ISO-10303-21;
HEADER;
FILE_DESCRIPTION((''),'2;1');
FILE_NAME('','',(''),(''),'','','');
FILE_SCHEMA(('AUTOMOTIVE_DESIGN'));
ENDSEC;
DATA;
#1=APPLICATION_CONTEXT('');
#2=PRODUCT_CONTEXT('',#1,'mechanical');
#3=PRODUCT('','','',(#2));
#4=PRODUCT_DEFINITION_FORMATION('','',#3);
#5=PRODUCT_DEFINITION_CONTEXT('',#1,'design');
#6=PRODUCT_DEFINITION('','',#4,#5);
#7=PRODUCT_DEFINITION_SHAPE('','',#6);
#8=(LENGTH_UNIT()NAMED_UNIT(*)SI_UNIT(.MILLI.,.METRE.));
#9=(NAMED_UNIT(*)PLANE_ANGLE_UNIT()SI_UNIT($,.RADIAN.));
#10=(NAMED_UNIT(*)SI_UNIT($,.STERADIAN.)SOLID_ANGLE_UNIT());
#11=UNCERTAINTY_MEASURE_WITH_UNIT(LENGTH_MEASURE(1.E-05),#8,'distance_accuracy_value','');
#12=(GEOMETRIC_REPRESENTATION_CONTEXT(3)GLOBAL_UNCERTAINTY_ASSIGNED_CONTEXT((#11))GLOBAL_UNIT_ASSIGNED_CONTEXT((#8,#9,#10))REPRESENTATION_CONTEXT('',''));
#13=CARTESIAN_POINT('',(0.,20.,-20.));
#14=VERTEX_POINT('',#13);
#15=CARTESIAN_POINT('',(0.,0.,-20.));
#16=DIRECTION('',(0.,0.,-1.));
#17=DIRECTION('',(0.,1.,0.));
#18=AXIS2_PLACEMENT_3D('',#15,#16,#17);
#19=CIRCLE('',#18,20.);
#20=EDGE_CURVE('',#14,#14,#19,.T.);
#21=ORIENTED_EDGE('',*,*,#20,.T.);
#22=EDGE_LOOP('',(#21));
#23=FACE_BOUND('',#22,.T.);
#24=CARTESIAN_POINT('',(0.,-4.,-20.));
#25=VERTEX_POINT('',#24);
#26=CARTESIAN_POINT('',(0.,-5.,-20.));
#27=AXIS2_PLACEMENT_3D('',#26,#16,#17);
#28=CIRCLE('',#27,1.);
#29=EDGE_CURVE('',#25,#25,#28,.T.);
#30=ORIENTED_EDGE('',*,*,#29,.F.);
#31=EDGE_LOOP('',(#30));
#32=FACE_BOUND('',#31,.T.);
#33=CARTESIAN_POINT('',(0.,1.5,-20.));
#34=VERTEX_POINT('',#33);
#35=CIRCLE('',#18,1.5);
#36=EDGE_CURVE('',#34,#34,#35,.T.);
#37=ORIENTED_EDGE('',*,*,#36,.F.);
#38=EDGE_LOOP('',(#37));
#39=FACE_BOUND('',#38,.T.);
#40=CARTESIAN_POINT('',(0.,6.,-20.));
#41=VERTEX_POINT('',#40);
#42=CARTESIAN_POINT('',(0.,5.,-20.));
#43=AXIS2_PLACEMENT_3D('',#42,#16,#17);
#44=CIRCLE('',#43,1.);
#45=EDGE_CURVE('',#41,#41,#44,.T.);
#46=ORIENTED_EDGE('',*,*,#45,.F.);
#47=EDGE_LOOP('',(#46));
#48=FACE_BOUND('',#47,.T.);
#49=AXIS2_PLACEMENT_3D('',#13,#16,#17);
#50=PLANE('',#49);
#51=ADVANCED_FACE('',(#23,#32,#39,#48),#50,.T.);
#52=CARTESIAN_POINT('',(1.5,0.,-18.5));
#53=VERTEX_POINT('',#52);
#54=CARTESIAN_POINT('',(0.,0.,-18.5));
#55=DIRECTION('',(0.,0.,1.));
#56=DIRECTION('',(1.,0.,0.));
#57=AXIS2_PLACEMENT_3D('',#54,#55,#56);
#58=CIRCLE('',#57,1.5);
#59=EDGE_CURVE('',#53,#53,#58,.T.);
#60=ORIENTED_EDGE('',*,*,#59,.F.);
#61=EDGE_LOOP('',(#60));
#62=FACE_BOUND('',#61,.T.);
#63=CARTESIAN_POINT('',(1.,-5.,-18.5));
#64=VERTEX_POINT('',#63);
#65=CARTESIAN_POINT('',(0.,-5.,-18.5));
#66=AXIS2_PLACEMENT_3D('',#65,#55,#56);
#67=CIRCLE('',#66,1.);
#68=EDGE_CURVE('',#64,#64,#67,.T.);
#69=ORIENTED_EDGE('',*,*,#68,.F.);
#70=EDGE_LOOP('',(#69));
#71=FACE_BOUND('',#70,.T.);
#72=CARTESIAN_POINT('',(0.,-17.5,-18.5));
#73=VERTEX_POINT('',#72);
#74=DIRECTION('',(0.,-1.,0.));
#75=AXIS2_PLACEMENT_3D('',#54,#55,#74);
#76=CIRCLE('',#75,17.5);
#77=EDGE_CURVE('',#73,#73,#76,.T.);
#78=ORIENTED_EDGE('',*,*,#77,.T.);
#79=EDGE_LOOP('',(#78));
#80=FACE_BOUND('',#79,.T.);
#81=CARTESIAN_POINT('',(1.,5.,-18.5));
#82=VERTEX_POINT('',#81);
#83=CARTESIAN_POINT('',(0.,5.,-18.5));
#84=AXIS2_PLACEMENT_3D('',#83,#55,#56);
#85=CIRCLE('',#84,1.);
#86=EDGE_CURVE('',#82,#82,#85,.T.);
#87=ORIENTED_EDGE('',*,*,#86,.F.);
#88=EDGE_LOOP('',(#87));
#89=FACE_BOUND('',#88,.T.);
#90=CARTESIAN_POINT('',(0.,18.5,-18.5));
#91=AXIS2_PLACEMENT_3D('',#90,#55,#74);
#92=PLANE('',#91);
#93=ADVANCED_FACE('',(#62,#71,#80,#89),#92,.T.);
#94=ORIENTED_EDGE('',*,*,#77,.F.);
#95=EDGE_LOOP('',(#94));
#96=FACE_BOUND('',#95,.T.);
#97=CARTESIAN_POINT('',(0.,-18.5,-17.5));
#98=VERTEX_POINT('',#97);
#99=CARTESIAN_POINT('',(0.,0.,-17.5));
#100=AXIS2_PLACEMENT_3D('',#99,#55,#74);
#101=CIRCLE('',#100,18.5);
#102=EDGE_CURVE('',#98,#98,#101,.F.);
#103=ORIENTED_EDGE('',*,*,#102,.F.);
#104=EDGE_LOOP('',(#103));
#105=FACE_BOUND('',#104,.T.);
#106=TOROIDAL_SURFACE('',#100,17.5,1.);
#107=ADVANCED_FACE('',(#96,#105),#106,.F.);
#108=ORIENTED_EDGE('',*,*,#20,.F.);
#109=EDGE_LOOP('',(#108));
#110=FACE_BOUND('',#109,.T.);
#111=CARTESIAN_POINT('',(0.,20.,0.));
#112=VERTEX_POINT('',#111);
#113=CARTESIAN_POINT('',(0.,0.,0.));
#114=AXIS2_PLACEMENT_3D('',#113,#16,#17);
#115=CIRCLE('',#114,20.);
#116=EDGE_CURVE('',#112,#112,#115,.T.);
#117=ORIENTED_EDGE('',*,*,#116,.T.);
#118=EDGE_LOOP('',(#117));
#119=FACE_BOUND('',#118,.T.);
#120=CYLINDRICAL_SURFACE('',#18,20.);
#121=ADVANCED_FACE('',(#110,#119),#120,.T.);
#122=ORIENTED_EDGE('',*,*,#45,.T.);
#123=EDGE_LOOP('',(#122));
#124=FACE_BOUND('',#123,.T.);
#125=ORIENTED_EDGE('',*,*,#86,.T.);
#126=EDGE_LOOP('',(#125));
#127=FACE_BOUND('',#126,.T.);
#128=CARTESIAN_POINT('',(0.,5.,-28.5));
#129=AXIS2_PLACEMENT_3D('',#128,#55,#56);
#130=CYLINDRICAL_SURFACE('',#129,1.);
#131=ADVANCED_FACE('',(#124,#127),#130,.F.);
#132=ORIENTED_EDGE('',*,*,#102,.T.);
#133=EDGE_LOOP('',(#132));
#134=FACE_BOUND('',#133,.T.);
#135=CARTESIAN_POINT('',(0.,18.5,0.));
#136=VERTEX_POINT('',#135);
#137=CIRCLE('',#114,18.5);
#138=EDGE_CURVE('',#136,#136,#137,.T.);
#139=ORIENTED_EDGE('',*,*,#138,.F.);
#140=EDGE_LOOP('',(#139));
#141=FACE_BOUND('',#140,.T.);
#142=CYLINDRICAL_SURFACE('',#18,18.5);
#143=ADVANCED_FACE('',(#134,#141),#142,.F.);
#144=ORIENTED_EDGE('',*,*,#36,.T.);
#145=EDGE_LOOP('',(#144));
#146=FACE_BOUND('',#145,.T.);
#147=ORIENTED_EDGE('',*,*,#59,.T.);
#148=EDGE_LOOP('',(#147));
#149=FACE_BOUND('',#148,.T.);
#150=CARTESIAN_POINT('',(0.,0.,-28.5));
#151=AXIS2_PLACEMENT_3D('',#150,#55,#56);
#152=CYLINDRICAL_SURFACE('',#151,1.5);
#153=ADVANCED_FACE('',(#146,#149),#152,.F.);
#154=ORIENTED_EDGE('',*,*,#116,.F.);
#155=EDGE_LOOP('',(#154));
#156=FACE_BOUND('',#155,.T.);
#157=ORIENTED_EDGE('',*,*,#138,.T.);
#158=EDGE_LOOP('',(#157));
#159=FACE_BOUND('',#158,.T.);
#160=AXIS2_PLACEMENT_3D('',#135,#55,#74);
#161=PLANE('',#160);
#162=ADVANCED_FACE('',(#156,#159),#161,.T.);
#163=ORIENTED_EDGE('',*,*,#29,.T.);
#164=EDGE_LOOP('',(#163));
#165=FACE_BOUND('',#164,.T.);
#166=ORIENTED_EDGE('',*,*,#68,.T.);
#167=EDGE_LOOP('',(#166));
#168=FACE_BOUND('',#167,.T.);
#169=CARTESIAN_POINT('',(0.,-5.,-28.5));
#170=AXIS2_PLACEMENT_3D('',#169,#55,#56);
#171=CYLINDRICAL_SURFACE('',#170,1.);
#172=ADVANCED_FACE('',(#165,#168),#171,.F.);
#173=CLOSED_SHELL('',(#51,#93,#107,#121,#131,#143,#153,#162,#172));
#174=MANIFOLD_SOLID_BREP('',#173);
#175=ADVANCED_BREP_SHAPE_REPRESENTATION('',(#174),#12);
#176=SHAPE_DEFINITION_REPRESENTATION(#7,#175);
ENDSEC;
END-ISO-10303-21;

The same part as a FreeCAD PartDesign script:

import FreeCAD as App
import Part
import Sketcher
from FreeCAD import Vector
Q = App.Units.Quantity


def edges_at(feature, points):
    """Names of the edges that pass closest to the given points."""
    edges = feature.Shape.Edges
    near = lambda p: min(range(len(edges)), key=lambda i: edges[i].distToShape(Part.Vertex(*p))[0])
    return sorted({f"Edge{near(p) + 1}" for p in points})


def add_polygon(sketch, points):
    """Adds a closed chain of lines whose ends are joined by coincident constraints."""
    first, n = sketch.GeometryCount, len(points)
    for a, b in zip(points, points[1:] + points[:1]):
        sketch.addGeometry(Part.LineSegment(App.Vector(*a, 0), App.Vector(*b, 0)), False)
    for i in range(n):
        sketch.addConstraint(Sketcher.Constraint("Coincident", first + i, 2, first + (i + 1) % n, 1))

doc = App.newDocument("Part")
body = doc.addObject("PartDesign::Body", "Body")

# Sketch on XY plane
sketch1 = body.newObject("Sketcher::SketchObject", "Sketch")
sketch1.AttachmentSupport = (doc.getObject("XY_Plane"), [""])
sketch1.MapMode = "FlatFace"
sketch1.addGeometry(Part.Circle(Vector(0, 0, 0), Vector(0, 0, 1), 10), False)
sketch1.addGeometry(Part.Circle(Vector(-3.5, -4.9, 0), Vector(0, 0, 1), 2.6), False)
sketch1.addGeometry(Part.Circle(Vector(3.5, -4.9, 0), Vector(0, 0, 1), 2.6), False)
sketch1.addGeometry(Part.Circle(Vector(-5.7, 1.9, 0), Vector(0, 0, 1), 2.6), False)
sketch1.addGeometry(Part.Circle(Vector(5.7, 1.9, 0), Vector(0, 0, 1), 2.6), False)
sketch1.addGeometry(Part.Circle(Vector(0, 6, 0), Vector(0, 0, 1), 2.6), False)
sketch1.addConstraint(Sketcher.Constraint("Coincident", 0, 3, -1, 1))
sketch1.addConstraint(Sketcher.Constraint("Equal", 1, 2))
sketch1.addConstraint(Sketcher.Constraint("Equal", 2, 3))
sketch1.addConstraint(Sketcher.Constraint("Equal", 3, 4))
sketch1.addConstraint(Sketcher.Constraint("Equal", 4, 5))
sketch1.addConstraint(Sketcher.Constraint("Symmetric", 1, 3, 2, 3, -2))
sketch1.addConstraint(Sketcher.Constraint("Symmetric", 3, 3, 4, 3, -2))
sketch1.addConstraint(Sketcher.Constraint("PointOnObject", 5, 3, -2))
sketch1.addConstraint(Sketcher.Constraint("Diameter", 0, Q("20 mm")))
sketch1.addConstraint(Sketcher.Constraint("Diameter", 1, Q("5.3 mm")))
sketch1.addConstraint(Sketcher.Constraint("DistanceY", -1, 1, 5, 3, Q("6 mm")))
sketch1.addConstraint(Sketcher.Constraint("DistanceY", 1, 3, -1, 1, Q("4.854102 mm")))
sketch1.addConstraint(Sketcher.Constraint("DistanceY", -1, 1, 3, 3, Q("1.854102 mm")))
sketch1.addConstraint(Sketcher.Constraint("DistanceX", 1, 3, -1, 1, Q("3.526712 mm")))
sketch1.addConstraint(Sketcher.Constraint("DistanceX", 3, 3, -1, 1, Q("5.706339 mm")))
pad1 = body.newObject("PartDesign::Pad", "Pad")
pad1.Profile = sketch1
pad1.Length = 1
body2 = doc.addObject("PartDesign::Body", "Body001")

# Sketch on XY plane
sketch2 = body2.newObject("Sketcher::SketchObject", "Sketch001")
sketch2.AttachmentSupport = (doc.getObject("XY_Plane001"), [""])
sketch2.MapMode = "FlatFace"
sketch2.AttachmentOffset = App.Placement(Vector(0, 0, 1), App.Rotation())
sketch2.addGeometry(Part.Circle(Vector(0, 0, 0), Vector(0, 0, 1), 10), False)
sketch2.addConstraint(Sketcher.Constraint("Coincident", 0, 3, -1, 1))
sketch2.addConstraint(Sketcher.Constraint("Diameter", 0, Q("20 mm")))

# Sketch on XY plane
sketch3 = body2.newObject("Sketcher::SketchObject", "Sketch002")
sketch3.AttachmentSupport = (doc.getObject("XY_Plane001"), [""])
sketch3.MapMode = "FlatFace"
sketch3.AttachmentOffset = App.Placement(Vector(0, 0, 15), App.Rotation())
sketch3.addGeometry(Part.Circle(Vector(0, 0, 0), Vector(0, 0, 1), 20), False)
sketch3.addConstraint(Sketcher.Constraint("Coincident", 0, 3, -1, 1))
sketch3.addConstraint(Sketcher.Constraint("Diameter", 0, Q("40 mm")))

# Sketch on XY plane
sketch4 = body2.newObject("Sketcher::SketchObject", "Sketch003")
sketch4.AttachmentSupport = (doc.getObject("XY_Plane001"), [""])
sketch4.MapMode = "FlatFace"
sketch4.AttachmentOffset = App.Placement(Vector(0, 0, 45), App.Rotation())
sketch4.addGeometry(Part.Circle(Vector(0, 0, 0), Vector(0, 0, 1), 30), False)
sketch4.addConstraint(Sketcher.Constraint("Coincident", 0, 3, -1, 1))
sketch4.addConstraint(Sketcher.Constraint("Diameter", 0, Q("60 mm")))

additiveloft = body2.newObject("PartDesign::AdditiveLoft", "AdditiveLoft")
additiveloft.Profile = sketch2
additiveloft.Sections = [sketch3, sketch4]
doc.recompute()

boolean = body.newObject("PartDesign::Boolean", "Boolean")
boolean.Type = "Fuse"
boolean.addObjects([body2])

# Sketch on XY plane
sketch5 = body.newObject("Sketcher::SketchObject", "Sketch004")
sketch5.AttachmentSupport = (doc.getObject("XY_Plane"), [""])
sketch5.MapMode = "FlatFace"
sketch5.addGeometry(Part.Circle(Vector(0, 0, 0), Vector(0, 0, 1), 12), False)
sketch5.addGeometry(Part.Circle(Vector(0, 0, 0), Vector(0, 0, 1), 10), False)
sketch5.addConstraint(Sketcher.Constraint("Coincident", 0, 3, -1, 1))
sketch5.addConstraint(Sketcher.Constraint("Coincident", 1, 3, -1, 1))
sketch5.addConstraint(Sketcher.Constraint("Diameter", 0, Q("23 mm")))
sketch5.addConstraint(Sketcher.Constraint("Diameter", 1, Q("20 mm")))
pad2 = body.newObject("PartDesign::Pad", "Pad001")
pad2.Profile = sketch5
pad2.Length = 1

# Sketch on XY plane
sketch6 = body.newObject("Sketcher::SketchObject", "Sketch005")
sketch6.AttachmentSupport = (doc.getObject("XY_Plane"), [""])
sketch6.MapMode = "FlatFace"
sketch6.addGeometry(Part.Circle(Vector(0, 0, 0), Vector(0, 0, 1), 51), False)
sketch6.addConstraint(Sketcher.Constraint("Coincident", 0, 3, -1, 1))
sketch6.addConstraint(Sketcher.Constraint("Diameter", 0, Q("102.033287 mm")))
pocket1 = body.newObject("PartDesign::Pocket", "Pocket")
pocket1.Profile = sketch6
pocket1.Length = 70
pocket1.Reversed = True
body3 = doc.addObject("PartDesign::Body", "Body002")

# Sketch on YZ plane
sketch7 = body3.newObject("Sketcher::SketchObject", "Sketch006")
sketch7.AttachmentSupport = (doc.getObject("YZ_Plane002"), [""])
sketch7.MapMode = "FlatFace"
add_polygon(sketch7, [(18.5, 0), (18.5, -18.5), (0, -18.5), (0, -20), (20, -20), (20, 0)])  # lines 0-5
sketch7.addConstraint(Sketcher.Constraint("Vertical", 0))
sketch7.addConstraint(Sketcher.Constraint("Horizontal", 1))
sketch7.addConstraint(Sketcher.Constraint("Vertical", 2))
sketch7.addConstraint(Sketcher.Constraint("Horizontal", 3))
sketch7.addConstraint(Sketcher.Constraint("Vertical", 4))
sketch7.addConstraint(Sketcher.Constraint("Horizontal", 5))
sketch7.addConstraint(Sketcher.Constraint("PointOnObject", 1, 2, -2))
sketch7.addConstraint(Sketcher.Constraint("PointOnObject", 4, 2, -1))
sketch7.addConstraint(Sketcher.Constraint("Equal", 1, 0))
sketch7.addConstraint(Sketcher.Constraint("Equal", 5, 2))
sketch7.addConstraint(Sketcher.Constraint("DistanceX", 3, 1, 3, 2, Q("20 mm")))
sketch7.addConstraint(Sketcher.Constraint("DistanceX", 1, 2, 1, 1, Q("18.5 mm")))
revolution = body3.newObject("PartDesign::Revolution", "Revolution")
revolution.Profile = sketch7
revolution.ReferenceAxis = (sketch7, ["V_Axis"])
revolution.Angle = 360
doc.recompute()

fillet = body3.newObject("PartDesign::Fillet", "Fillet")
fillet.Base = (revolution, edges_at(revolution, [(0, -18.5, -18.5)]))
fillet.Radius = 1

# Sketch on XY plane
sketch8 = body3.newObject("Sketcher::SketchObject", "Sketch007")
sketch8.AttachmentSupport = (doc.getObject("XY_Plane002"), [""])
sketch8.MapMode = "FlatFace"
sketch8.AttachmentOffset = App.Placement(Vector(0, 0, -18.5), App.Rotation())
sketch8.addGeometry(Part.Circle(Vector(0, 5, 0), Vector(0, 0, 1), 1), False)
sketch8.addGeometry(Part.Circle(Vector(0, -5, 0), Vector(0, 0, 1), 1), False)
sketch8.addGeometry(Part.Circle(Vector(0, 0, 0), Vector(0, 0, 1), 1.5), False)
sketch8.addConstraint(Sketcher.Constraint("Coincident", 2, 3, -1, 1))
sketch8.addConstraint(Sketcher.Constraint("Equal", 0, 1))
sketch8.addConstraint(Sketcher.Constraint("Symmetric", 0, 3, 1, 3, -1, 1))
sketch8.addConstraint(Sketcher.Constraint("PointOnObject", 0, 3, -2))
sketch8.addConstraint(Sketcher.Constraint("Diameter", 0, Q("2 mm")))
sketch8.addConstraint(Sketcher.Constraint("Diameter", 2, Q("3 mm")))
sketch8.addConstraint(Sketcher.Constraint("DistanceY", -1, 1, 0, 3, Q("5 mm")))
pocket2 = body3.newObject("PartDesign::Pocket", "Pocket001")
pocket2.Profile = sketch8
pocket2.Length = 10

doc.recompute()
